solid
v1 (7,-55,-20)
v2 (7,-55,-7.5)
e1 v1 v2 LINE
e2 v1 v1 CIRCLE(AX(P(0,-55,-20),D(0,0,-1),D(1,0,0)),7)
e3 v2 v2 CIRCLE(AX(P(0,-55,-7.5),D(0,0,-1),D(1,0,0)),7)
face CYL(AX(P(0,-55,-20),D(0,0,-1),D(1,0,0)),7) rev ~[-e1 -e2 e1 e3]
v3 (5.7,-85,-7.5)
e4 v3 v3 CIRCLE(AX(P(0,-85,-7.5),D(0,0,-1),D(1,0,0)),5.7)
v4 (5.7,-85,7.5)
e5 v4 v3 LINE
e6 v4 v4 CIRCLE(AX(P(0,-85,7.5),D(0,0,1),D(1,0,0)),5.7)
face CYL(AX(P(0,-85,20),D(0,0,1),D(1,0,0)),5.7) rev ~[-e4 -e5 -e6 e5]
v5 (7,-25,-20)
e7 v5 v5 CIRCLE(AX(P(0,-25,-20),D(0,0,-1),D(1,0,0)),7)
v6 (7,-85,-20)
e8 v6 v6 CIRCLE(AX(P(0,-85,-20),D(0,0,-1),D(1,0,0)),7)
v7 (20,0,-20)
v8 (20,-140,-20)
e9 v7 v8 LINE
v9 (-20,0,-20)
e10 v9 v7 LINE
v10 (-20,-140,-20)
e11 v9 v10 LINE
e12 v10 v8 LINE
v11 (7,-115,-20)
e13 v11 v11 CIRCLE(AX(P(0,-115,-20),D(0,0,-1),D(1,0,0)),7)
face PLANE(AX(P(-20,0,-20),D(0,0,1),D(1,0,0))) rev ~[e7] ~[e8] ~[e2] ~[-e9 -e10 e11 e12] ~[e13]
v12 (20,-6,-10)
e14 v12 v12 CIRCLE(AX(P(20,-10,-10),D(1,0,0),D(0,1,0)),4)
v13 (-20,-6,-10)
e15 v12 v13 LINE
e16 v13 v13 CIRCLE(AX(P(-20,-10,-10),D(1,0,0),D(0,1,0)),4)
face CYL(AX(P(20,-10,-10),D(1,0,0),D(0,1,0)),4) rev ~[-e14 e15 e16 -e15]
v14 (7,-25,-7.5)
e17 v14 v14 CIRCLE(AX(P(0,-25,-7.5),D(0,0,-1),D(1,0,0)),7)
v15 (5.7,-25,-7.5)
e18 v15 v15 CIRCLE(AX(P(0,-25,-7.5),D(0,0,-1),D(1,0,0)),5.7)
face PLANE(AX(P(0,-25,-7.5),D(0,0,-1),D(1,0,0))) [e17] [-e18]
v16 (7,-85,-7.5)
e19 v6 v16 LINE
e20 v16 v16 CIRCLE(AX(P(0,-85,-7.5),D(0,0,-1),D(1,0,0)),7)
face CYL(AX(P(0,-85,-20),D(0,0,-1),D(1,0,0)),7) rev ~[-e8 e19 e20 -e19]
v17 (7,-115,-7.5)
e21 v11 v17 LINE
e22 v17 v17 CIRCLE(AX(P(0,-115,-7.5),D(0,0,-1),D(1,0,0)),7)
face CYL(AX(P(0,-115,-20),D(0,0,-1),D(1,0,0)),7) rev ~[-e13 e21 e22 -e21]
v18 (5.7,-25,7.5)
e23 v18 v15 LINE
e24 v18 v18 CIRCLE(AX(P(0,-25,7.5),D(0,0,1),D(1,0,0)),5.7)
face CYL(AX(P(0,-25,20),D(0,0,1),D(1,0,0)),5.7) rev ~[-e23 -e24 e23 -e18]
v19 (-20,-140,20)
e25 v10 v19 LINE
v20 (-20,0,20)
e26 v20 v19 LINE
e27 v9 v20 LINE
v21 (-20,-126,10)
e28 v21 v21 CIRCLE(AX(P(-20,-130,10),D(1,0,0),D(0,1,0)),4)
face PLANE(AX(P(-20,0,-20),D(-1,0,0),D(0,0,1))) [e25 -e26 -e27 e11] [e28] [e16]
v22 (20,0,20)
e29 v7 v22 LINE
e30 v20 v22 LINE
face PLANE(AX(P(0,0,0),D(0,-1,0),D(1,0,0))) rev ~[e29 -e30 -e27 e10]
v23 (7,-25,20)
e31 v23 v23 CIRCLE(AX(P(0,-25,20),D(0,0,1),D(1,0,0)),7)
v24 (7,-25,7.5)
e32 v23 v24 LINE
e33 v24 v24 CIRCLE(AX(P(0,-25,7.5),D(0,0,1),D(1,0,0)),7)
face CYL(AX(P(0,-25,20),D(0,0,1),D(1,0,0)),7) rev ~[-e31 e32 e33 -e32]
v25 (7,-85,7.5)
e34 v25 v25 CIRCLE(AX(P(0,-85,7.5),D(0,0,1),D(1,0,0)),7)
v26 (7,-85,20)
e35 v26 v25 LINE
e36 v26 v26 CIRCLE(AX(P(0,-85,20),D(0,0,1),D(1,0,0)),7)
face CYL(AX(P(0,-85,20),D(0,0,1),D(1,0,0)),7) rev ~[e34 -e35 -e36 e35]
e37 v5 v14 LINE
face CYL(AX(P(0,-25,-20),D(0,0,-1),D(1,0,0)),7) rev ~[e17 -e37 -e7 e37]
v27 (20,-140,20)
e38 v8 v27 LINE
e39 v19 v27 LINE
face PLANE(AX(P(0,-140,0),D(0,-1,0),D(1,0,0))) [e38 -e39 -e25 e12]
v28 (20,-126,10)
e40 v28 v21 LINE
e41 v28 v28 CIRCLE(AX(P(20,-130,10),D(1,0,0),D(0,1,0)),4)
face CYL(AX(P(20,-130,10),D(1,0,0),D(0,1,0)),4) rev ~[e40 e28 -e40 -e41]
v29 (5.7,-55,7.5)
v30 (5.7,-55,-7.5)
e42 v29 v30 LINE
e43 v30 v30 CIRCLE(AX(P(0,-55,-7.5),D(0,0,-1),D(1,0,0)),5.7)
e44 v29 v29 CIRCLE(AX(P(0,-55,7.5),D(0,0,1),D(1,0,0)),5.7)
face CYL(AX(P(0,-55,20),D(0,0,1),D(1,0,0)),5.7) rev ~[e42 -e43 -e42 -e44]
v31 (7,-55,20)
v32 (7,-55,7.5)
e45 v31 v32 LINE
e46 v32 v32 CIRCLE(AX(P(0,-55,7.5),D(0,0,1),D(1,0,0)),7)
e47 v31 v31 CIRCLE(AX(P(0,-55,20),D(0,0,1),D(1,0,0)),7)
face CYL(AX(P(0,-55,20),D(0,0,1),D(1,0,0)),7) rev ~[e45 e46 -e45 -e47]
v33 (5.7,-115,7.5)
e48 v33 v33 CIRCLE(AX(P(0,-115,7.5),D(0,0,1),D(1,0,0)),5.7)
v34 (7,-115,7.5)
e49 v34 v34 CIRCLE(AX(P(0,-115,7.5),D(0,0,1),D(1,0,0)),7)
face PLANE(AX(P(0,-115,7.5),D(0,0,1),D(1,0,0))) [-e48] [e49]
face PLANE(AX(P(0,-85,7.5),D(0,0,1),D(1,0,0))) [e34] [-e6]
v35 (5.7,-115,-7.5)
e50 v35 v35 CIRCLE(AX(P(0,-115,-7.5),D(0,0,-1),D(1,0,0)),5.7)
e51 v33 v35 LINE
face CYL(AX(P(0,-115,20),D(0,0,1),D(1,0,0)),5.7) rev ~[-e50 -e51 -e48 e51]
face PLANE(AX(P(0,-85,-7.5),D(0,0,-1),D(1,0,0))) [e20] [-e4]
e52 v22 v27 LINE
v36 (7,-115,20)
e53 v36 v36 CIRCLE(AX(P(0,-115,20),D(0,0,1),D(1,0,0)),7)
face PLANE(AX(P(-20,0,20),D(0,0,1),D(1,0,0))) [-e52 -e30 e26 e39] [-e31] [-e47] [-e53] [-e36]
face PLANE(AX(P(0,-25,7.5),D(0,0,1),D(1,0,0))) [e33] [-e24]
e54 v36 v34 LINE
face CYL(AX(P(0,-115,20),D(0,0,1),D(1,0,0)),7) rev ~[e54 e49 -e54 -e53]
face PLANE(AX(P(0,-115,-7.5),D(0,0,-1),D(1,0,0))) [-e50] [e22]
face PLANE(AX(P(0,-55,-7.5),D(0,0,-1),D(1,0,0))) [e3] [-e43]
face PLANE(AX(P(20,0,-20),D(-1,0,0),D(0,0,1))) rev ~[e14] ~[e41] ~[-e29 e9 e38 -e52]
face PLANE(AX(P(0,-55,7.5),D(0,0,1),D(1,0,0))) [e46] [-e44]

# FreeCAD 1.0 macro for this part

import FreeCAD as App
import Part
import Sketcher
from FreeCAD import Vector
Q = App.Units.Quantity


def add_polygon(sketch, points):
    """Adds a closed chain of lines whose ends are joined by coincident constraints."""
    first, n = sketch.GeometryCount, len(points)
    for a, b in zip(points, points[1:] + points[:1]):
        sketch.addGeometry(Part.LineSegment(App.Vector(*a, 0), App.Vector(*b, 0)), False)
    for i in range(n):
        sketch.addConstraint(Sketcher.Constraint("Coincident", first + i, 2, first + (i + 1) % n, 1))

doc = App.newDocument("Part")
body = doc.addObject("PartDesign::Body", "Body")

sketch1 = doc.addObject("Sketcher::SketchObject", "Sketch")
body.addObject(sketch1)
sketch1.AttachmentSupport = (doc.XZ_Plane, [""])
sketch1.MapMode = "FlatFace"
add_polygon(sketch1, [(-20, 20), (-20, -20), (20, -20), (20, 20)])
sketch1.addConstraint([
    Sketcher.Constraint("Vertical", 0),
    Sketcher.Constraint("Horizontal", 1),
    Sketcher.Constraint("Vertical", 2),
    Sketcher.Constraint("Horizontal", 3),
    Sketcher.Constraint("Symmetric", 0, 2, 2, 2, -1, 1),
    Sketcher.Constraint("Equal", 3, 0),
    Sketcher.Constraint("DistanceX", 1, 1, 1, 2, Q("40 mm")),
])
pad1 = doc.addObject("PartDesign::Pad", "Pad")
body.addObject(pad1)
pad1.Profile = sketch1
pad1.Length = 140

sketch2 = doc.addObject("Sketcher::SketchObject", "Sketch001")
body.addObject(sketch2)
sketch2.AttachmentSupport = (doc.XY_Plane, [""])
sketch2.MapMode = "FlatFace"
sketch2.AttachmentOffset = App.Placement(Vector(0, 0, 20), App.Rotation())
sketch2.addGeometry([
    Part.Circle(Vector(0, -55, 0), Vector(0, 0, 1), 6),
    Part.Circle(Vector(0, -85, 0), Vector(0, 0, 1), 6),
    Part.Circle(Vector(0, -115, 0), Vector(0, 0, 1), 6),
    Part.Circle(Vector(0, -25, 0), Vector(0, 0, 1), 6),
], False)
sketch2.addConstraint([
    Sketcher.Constraint("Equal", 0, 1),
    Sketcher.Constraint("Equal", 1, 2),
    Sketcher.Constraint("Equal", 2, 3),
    Sketcher.Constraint("PointOnObject", 0, 3, -2),
    Sketcher.Constraint("PointOnObject", 1, 3, -2),
    Sketcher.Constraint("PointOnObject", 2, 3, -2),
    Sketcher.Constraint("PointOnObject", 3, 3, -2),
    Sketcher.Constraint("Diameter", 0, Q("11.4 mm")),
    Sketcher.Constraint("DistanceY", 0, 3, -1, 1, Q("55 mm")),
    Sketcher.Constraint("DistanceY", 1, 3, -1, 1, Q("85 mm")),
    Sketcher.Constraint("DistanceY", 2, 3, -1, 1, Q("115 mm")),
    Sketcher.Constraint("DistanceY", 3, 3, -1, 1, Q("25 mm")),
])
pocket1 = doc.addObject("PartDesign::Pocket", "Pocket")
body.addObject(pocket1)
pocket1.Profile = sketch2
pocket1.Length = 40

sketch3 = doc.addObject("Sketcher::SketchObject", "Sketch002")
body.addObject(sketch3)
sketch3.AttachmentSupport = (doc.YZ_Plane, [""])
sketch3.MapMode = "FlatFace"
sketch3.AttachmentOffset = App.Placement(Vector(0, 0, 20), App.Rotation())
sketch3.addGeometry([
    Part.Circle(Vector(-130, 10, 0), Vector(0, 0, 1), 4),
    Part.Circle(Vector(-10, -10, 0), Vector(0, 0, 1), 4),
], False)
sketch3.addConstraint([
    Sketcher.Constraint("Equal", 0, 1),
    Sketcher.Constraint("Diameter", 0, Q("8 mm")),
    Sketcher.Constraint("DistanceX", 0, 3, -1, 1, Q("130 mm")),
    Sketcher.Constraint("DistanceY", -1, 1, 0, 3, Q("10 mm")),
    Sketcher.Constraint("DistanceX", 1, 3, -1, 1, Q("10 mm")),
    Sketcher.Constraint("DistanceY", 1, 3, -1, 1, Q("10 mm")),
])
pocket2 = doc.addObject("PartDesign::Pocket", "Pocket001")
body.addObject(pocket2)
pocket2.Profile = sketch3
pocket2.Length = 40

sketch4 = doc.addObject("Sketcher::SketchObject", "Sketch003")
body.addObject(sketch4)
sketch4.AttachmentSupport = (doc.XY_Plane, [""])
sketch4.MapMode = "FlatFace"
sketch4.AttachmentOffset = App.Placement(Vector(0, 0, -20), App.Rotation())
sketch4.addGeometry([
    Part.Circle(Vector(0, -115, 0), Vector(0, 0, 1), 7),
    Part.Circle(Vector(0, -115, 0), Vector(0, 0, 1), 6),
    Part.Circle(Vector(0, -85, 0), Vector(0, 0, 1), 7),
    Part.Circle(Vector(0, -85, 0), Vector(0, 0, 1), 6),
    Part.Circle(Vector(0, -55, 0), Vector(0, 0, 1), 7),
    Part.Circle(Vector(0, -55, 0), Vector(0, 0, 1), 6),
    Part.Circle(Vector(0, -25, 0), Vector(0, 0, 1), 7),
    Part.Circle(Vector(0, -25, 0), Vector(0, 0, 1), 6),
], False)
sketch4.addConstraint([
    Sketcher.Constraint("Coincident", 1, 3, 0, 3),
    Sketcher.Constraint("Coincident", 3, 3, 2, 3),
    Sketcher.Constraint("Coincident", 5, 3, 4, 3),
    Sketcher.Constraint("Coincident", 7, 3, 6, 3),
    Sketcher.Constraint("Equal", 0, 2),
    Sketcher.Constraint("Equal", 1, 3),
    Sketcher.Constraint("Equal", 2, 4),
    Sketcher.Constraint("Equal", 3, 5),
    Sketcher.Constraint("Equal", 4, 6),
    Sketcher.Constraint("Equal", 5, 7),
    Sketcher.Constraint("PointOnObject", 0, 3, -2),
    Sketcher.Constraint("PointOnObject", 2, 3, -2),
    Sketcher.Constraint("PointOnObject", 4, 3, -2),
    Sketcher.Constraint("PointOnObject", 6, 3, -2),
    Sketcher.Constraint("Diameter", 0, Q("14 mm")),
    Sketcher.Constraint("Diameter", 1, Q("11.4 mm")),
    Sketcher.Constraint("DistanceY", 0, 3, -1, 1, Q("115 mm")),
    Sketcher.Constraint("DistanceY", 2, 3, -1, 1, Q("85 mm")),
    Sketcher.Constraint("DistanceY", 4, 3, -1, 1, Q("55 mm")),
    Sketcher.Constraint("DistanceY", 6, 3, -1, 1, Q("25 mm")),
])
pocket3 = doc.addObject("PartDesign::Pocket", "Pocket002")
body.addObject(pocket3)
pocket3.Profile = sketch4
pocket3.Length = 12.5
pocket3.Reversed = True

sketch5 = doc.addObject("Sketcher::SketchObject", "Sketch004")
body.addObject(sketch5)
sketch5.AttachmentSupport = (doc.XY_Plane, [""])
sketch5.MapMode = "FlatFace"
sketch5.AttachmentOffset = App.Placement(Vector(0, 0, 20), App.Rotation())
sketch5.addGeometry([
    Part.Circle(Vector(0, -25, 0), Vector(0, 0, 1), 7),
    Part.Circle(Vector(0, -25, 0), Vector(0, 0, 1), 6),
    Part.Circle(Vector(0, -55, 0), Vector(0, 0, 1), 7),
    Part.Circle(Vector(0, -55, 0), Vector(0, 0, 1), 6),
    Part.Circle(Vector(0, -85, 0), Vector(0, 0, 1), 7),
    Part.Circle(Vector(0, -85, 0), Vector(0, 0, 1), 6),
    Part.Circle(Vector(0, -115, 0), Vector(0, 0, 1), 7),
    Part.Circle(Vector(0, -115, 0), Vector(0, 0, 1), 6),
], False)
sketch5.addConstraint([
    Sketcher.Constraint("Coincident", 1, 3, 0, 3),
    Sketcher.Constraint("Coincident", 3, 3, 2, 3),
    Sketcher.Constraint("Coincident", 5, 3, 4, 3),
    Sketcher.Constraint("Coincident", 7, 3, 6, 3),
    Sketcher.Constraint("Equal", 0, 2),
    Sketcher.Constraint("Equal", 1, 3),
    Sketcher.Constraint("Equal", 2, 4),
    Sketcher.Constraint("Equal", 3, 5),
    Sketcher.Constraint("Equal", 4, 6),
    Sketcher.Constraint("Equal", 5, 7),
    Sketcher.Constraint("PointOnObject", 0, 3, -2),
    Sketcher.Constraint("PointOnObject", 2, 3, -2),
    Sketcher.Constraint("PointOnObject", 4, 3, -2),
    Sketcher.Constraint("PointOnObject", 6, 3, -2),
    Sketcher.Constraint("Diameter", 0, Q("14 mm")),
    Sketcher.Constraint("Diameter", 1, Q("11.4 mm")),
    Sketcher.Constraint("DistanceY", 0, 3, -1, 1, Q("25 mm")),
    Sketcher.Constraint("DistanceY", 2, 3, -1, 1, Q("55 mm")),
    Sketcher.Constraint("DistanceY", 4, 3, -1, 1, Q("85 mm")),
    Sketcher.Constraint("DistanceY", 6, 3, -1, 1, Q("115 mm")),
])
pocket4 = doc.addObject("PartDesign::Pocket", "Pocket003")
body.addObject(pocket4)
pocket4.Profile = sketch5
pocket4.Length = 12.5

doc.recompute()
